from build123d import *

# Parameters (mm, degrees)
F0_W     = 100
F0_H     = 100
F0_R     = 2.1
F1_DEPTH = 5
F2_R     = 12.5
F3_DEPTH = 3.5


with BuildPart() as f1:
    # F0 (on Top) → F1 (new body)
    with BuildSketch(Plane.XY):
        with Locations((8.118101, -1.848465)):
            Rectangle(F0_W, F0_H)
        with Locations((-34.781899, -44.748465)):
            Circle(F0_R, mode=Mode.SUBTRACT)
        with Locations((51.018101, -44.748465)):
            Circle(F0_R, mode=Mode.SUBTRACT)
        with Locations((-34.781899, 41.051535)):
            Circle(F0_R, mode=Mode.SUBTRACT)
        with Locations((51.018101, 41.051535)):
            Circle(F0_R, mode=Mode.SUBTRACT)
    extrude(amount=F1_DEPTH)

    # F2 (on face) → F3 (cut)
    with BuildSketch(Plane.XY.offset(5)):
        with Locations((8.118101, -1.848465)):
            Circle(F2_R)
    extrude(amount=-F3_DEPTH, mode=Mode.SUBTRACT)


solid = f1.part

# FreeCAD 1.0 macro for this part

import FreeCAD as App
import Part
import Sketcher

V = App.Vector

doc = App.newDocument("Part")
body = doc.addObject("PartDesign::Body", "Body")

sketch1 = doc.addObject("Sketcher::SketchObject", "Sketch")
body.addObject(sketch1)
sketch1.AttachmentSupport = (doc.XY_Plane, [""])
sketch1.MapMode = "FlatFace"
sketch1.addGeometry(Part.LineSegment(V(-41.881899, 48.151535, 0), V(-41.881899, -51.848465, 0)), False)
sketch1.addGeometry(Part.LineSegment(V(-41.881899, -51.848465, 0), V(58.118101, -51.848465, 0)), False)
sketch1.addGeometry(Part.LineSegment(V(58.118101, -51.848465, 0), V(58.118101, 48.151535, 0)), False)
sketch1.addGeometry(Part.LineSegment(V(58.118101, 48.151535, 0), V(-41.881899, 48.151535, 0)), False)
sketch1.addGeometry(Part.Circle(V(-34.781899, -44.748465, 0), V(0, 0, 1), 2.1), False)
sketch1.addGeometry(Part.Circle(V(51.018101, -44.748465, 0), V(0, 0, 1), 2.1), False)
sketch1.addGeometry(Part.Circle(V(-34.781899, 41.051535, 0), V(0, 0, 1), 2.1), False)
sketch1.addGeometry(Part.Circle(V(51.018101, 41.051535, 0), V(0, 0, 1), 2.1), False)
sketch1.addConstraint(Sketcher.Constraint("Coincident", 0, 2, 1, 1))
sketch1.addConstraint(Sketcher.Constraint("Coincident", 1, 2, 2, 1))
sketch1.addConstraint(Sketcher.Constraint("Coincident", 2, 2, 3, 1))
sketch1.addConstraint(Sketcher.Constraint("Coincident", 3, 2, 0, 1))
sketch1.addConstraint(Sketcher.Constraint("Vertical", 0))
sketch1.addConstraint(Sketcher.Constraint("Horizontal", 1))
sketch1.addConstraint(Sketcher.Constraint("Vertical", 2))
sketch1.addConstraint(Sketcher.Constraint("Horizontal", 3))
sketch1.addConstraint(Sketcher.Constraint("Equal", 4, 5))
sketch1.addConstraint(Sketcher.Constraint("Equal", 5, 6))
sketch1.addConstraint(Sketcher.Constraint("Equal", 6, 7))
sketch1.addConstraint(Sketcher.Constraint("Horizontal", 4, 3, 5, 3))
sketch1.addConstraint(Sketcher.Constraint("Horizontal", 6, 3, 7, 3))
sketch1.addConstraint(Sketcher.Constraint("Vertical", 4, 3, 6, 3))
sketch1.addConstraint(Sketcher.Constraint("Vertical", 5, 3, 7, 3))
sketch1.addConstraint(Sketcher.Constraint("Equal", 3, 0))
sketch1.addConstraint(Sketcher.Constraint("Diameter", 4, 4.2))
sketch1.addConstraint(Sketcher.Constraint("DistanceX", 1, 1, 1, 2, 100.0))
sketch1.addConstraint(Sketcher.Constraint("DistanceX", 4, 3, 5, 3, 85.8))
sketch1.addConstraint(Sketcher.Constraint("DistanceY", 4, 3, 6, 3, 85.8))
sketch1.addConstraint(Sketcher.Constraint("DistanceX", 0, 2, 4, 3, 7.1))
sketch1.addConstraint(Sketcher.Constraint("DistanceY", 0, 2, 4, 3, 7.1))
sketch1.addConstraint(Sketcher.Constraint("DistanceX", 4, 3, -1, 1, 34.781899))
sketch1.addConstraint(Sketcher.Constraint("DistanceY", 4, 3, -1, 1, 44.748465))
pad1 = doc.addObject("PartDesign::Pad", "Pad")
body.addObject(pad1)
pad1.Profile = sketch1
pad1.Length = 5

sketch2 = doc.addObject("Sketcher::SketchObject", "Sketch001")
body.addObject(sketch2)
sketch2.AttachmentSupport = (doc.XY_Plane, [""])
sketch2.MapMode = "FlatFace"
sketch2.AttachmentOffset = App.Placement(V(0, 0, 5), App.Rotation())
sketch2.addGeometry(Part.Circle(V(8.118101, -1.848465, 0), V(0, 0, 1), 12.5), False)
sketch2.addConstraint(Sketcher.Constraint("Diameter", 0, 25.0))
sketch2.addConstraint(Sketcher.Constraint("DistanceX", -1, 1, 0, 3, 8.118101))
sketch2.addConstraint(Sketcher.Constraint("DistanceY", 0, 3, -1, 1, 1.848465))
pocket1 = doc.addObject("PartDesign::Pocket", "Pocket")
body.addObject(pocket1)
pocket1.Profile = sketch2
pocket1.Length = 3.5

doc.recompute()
